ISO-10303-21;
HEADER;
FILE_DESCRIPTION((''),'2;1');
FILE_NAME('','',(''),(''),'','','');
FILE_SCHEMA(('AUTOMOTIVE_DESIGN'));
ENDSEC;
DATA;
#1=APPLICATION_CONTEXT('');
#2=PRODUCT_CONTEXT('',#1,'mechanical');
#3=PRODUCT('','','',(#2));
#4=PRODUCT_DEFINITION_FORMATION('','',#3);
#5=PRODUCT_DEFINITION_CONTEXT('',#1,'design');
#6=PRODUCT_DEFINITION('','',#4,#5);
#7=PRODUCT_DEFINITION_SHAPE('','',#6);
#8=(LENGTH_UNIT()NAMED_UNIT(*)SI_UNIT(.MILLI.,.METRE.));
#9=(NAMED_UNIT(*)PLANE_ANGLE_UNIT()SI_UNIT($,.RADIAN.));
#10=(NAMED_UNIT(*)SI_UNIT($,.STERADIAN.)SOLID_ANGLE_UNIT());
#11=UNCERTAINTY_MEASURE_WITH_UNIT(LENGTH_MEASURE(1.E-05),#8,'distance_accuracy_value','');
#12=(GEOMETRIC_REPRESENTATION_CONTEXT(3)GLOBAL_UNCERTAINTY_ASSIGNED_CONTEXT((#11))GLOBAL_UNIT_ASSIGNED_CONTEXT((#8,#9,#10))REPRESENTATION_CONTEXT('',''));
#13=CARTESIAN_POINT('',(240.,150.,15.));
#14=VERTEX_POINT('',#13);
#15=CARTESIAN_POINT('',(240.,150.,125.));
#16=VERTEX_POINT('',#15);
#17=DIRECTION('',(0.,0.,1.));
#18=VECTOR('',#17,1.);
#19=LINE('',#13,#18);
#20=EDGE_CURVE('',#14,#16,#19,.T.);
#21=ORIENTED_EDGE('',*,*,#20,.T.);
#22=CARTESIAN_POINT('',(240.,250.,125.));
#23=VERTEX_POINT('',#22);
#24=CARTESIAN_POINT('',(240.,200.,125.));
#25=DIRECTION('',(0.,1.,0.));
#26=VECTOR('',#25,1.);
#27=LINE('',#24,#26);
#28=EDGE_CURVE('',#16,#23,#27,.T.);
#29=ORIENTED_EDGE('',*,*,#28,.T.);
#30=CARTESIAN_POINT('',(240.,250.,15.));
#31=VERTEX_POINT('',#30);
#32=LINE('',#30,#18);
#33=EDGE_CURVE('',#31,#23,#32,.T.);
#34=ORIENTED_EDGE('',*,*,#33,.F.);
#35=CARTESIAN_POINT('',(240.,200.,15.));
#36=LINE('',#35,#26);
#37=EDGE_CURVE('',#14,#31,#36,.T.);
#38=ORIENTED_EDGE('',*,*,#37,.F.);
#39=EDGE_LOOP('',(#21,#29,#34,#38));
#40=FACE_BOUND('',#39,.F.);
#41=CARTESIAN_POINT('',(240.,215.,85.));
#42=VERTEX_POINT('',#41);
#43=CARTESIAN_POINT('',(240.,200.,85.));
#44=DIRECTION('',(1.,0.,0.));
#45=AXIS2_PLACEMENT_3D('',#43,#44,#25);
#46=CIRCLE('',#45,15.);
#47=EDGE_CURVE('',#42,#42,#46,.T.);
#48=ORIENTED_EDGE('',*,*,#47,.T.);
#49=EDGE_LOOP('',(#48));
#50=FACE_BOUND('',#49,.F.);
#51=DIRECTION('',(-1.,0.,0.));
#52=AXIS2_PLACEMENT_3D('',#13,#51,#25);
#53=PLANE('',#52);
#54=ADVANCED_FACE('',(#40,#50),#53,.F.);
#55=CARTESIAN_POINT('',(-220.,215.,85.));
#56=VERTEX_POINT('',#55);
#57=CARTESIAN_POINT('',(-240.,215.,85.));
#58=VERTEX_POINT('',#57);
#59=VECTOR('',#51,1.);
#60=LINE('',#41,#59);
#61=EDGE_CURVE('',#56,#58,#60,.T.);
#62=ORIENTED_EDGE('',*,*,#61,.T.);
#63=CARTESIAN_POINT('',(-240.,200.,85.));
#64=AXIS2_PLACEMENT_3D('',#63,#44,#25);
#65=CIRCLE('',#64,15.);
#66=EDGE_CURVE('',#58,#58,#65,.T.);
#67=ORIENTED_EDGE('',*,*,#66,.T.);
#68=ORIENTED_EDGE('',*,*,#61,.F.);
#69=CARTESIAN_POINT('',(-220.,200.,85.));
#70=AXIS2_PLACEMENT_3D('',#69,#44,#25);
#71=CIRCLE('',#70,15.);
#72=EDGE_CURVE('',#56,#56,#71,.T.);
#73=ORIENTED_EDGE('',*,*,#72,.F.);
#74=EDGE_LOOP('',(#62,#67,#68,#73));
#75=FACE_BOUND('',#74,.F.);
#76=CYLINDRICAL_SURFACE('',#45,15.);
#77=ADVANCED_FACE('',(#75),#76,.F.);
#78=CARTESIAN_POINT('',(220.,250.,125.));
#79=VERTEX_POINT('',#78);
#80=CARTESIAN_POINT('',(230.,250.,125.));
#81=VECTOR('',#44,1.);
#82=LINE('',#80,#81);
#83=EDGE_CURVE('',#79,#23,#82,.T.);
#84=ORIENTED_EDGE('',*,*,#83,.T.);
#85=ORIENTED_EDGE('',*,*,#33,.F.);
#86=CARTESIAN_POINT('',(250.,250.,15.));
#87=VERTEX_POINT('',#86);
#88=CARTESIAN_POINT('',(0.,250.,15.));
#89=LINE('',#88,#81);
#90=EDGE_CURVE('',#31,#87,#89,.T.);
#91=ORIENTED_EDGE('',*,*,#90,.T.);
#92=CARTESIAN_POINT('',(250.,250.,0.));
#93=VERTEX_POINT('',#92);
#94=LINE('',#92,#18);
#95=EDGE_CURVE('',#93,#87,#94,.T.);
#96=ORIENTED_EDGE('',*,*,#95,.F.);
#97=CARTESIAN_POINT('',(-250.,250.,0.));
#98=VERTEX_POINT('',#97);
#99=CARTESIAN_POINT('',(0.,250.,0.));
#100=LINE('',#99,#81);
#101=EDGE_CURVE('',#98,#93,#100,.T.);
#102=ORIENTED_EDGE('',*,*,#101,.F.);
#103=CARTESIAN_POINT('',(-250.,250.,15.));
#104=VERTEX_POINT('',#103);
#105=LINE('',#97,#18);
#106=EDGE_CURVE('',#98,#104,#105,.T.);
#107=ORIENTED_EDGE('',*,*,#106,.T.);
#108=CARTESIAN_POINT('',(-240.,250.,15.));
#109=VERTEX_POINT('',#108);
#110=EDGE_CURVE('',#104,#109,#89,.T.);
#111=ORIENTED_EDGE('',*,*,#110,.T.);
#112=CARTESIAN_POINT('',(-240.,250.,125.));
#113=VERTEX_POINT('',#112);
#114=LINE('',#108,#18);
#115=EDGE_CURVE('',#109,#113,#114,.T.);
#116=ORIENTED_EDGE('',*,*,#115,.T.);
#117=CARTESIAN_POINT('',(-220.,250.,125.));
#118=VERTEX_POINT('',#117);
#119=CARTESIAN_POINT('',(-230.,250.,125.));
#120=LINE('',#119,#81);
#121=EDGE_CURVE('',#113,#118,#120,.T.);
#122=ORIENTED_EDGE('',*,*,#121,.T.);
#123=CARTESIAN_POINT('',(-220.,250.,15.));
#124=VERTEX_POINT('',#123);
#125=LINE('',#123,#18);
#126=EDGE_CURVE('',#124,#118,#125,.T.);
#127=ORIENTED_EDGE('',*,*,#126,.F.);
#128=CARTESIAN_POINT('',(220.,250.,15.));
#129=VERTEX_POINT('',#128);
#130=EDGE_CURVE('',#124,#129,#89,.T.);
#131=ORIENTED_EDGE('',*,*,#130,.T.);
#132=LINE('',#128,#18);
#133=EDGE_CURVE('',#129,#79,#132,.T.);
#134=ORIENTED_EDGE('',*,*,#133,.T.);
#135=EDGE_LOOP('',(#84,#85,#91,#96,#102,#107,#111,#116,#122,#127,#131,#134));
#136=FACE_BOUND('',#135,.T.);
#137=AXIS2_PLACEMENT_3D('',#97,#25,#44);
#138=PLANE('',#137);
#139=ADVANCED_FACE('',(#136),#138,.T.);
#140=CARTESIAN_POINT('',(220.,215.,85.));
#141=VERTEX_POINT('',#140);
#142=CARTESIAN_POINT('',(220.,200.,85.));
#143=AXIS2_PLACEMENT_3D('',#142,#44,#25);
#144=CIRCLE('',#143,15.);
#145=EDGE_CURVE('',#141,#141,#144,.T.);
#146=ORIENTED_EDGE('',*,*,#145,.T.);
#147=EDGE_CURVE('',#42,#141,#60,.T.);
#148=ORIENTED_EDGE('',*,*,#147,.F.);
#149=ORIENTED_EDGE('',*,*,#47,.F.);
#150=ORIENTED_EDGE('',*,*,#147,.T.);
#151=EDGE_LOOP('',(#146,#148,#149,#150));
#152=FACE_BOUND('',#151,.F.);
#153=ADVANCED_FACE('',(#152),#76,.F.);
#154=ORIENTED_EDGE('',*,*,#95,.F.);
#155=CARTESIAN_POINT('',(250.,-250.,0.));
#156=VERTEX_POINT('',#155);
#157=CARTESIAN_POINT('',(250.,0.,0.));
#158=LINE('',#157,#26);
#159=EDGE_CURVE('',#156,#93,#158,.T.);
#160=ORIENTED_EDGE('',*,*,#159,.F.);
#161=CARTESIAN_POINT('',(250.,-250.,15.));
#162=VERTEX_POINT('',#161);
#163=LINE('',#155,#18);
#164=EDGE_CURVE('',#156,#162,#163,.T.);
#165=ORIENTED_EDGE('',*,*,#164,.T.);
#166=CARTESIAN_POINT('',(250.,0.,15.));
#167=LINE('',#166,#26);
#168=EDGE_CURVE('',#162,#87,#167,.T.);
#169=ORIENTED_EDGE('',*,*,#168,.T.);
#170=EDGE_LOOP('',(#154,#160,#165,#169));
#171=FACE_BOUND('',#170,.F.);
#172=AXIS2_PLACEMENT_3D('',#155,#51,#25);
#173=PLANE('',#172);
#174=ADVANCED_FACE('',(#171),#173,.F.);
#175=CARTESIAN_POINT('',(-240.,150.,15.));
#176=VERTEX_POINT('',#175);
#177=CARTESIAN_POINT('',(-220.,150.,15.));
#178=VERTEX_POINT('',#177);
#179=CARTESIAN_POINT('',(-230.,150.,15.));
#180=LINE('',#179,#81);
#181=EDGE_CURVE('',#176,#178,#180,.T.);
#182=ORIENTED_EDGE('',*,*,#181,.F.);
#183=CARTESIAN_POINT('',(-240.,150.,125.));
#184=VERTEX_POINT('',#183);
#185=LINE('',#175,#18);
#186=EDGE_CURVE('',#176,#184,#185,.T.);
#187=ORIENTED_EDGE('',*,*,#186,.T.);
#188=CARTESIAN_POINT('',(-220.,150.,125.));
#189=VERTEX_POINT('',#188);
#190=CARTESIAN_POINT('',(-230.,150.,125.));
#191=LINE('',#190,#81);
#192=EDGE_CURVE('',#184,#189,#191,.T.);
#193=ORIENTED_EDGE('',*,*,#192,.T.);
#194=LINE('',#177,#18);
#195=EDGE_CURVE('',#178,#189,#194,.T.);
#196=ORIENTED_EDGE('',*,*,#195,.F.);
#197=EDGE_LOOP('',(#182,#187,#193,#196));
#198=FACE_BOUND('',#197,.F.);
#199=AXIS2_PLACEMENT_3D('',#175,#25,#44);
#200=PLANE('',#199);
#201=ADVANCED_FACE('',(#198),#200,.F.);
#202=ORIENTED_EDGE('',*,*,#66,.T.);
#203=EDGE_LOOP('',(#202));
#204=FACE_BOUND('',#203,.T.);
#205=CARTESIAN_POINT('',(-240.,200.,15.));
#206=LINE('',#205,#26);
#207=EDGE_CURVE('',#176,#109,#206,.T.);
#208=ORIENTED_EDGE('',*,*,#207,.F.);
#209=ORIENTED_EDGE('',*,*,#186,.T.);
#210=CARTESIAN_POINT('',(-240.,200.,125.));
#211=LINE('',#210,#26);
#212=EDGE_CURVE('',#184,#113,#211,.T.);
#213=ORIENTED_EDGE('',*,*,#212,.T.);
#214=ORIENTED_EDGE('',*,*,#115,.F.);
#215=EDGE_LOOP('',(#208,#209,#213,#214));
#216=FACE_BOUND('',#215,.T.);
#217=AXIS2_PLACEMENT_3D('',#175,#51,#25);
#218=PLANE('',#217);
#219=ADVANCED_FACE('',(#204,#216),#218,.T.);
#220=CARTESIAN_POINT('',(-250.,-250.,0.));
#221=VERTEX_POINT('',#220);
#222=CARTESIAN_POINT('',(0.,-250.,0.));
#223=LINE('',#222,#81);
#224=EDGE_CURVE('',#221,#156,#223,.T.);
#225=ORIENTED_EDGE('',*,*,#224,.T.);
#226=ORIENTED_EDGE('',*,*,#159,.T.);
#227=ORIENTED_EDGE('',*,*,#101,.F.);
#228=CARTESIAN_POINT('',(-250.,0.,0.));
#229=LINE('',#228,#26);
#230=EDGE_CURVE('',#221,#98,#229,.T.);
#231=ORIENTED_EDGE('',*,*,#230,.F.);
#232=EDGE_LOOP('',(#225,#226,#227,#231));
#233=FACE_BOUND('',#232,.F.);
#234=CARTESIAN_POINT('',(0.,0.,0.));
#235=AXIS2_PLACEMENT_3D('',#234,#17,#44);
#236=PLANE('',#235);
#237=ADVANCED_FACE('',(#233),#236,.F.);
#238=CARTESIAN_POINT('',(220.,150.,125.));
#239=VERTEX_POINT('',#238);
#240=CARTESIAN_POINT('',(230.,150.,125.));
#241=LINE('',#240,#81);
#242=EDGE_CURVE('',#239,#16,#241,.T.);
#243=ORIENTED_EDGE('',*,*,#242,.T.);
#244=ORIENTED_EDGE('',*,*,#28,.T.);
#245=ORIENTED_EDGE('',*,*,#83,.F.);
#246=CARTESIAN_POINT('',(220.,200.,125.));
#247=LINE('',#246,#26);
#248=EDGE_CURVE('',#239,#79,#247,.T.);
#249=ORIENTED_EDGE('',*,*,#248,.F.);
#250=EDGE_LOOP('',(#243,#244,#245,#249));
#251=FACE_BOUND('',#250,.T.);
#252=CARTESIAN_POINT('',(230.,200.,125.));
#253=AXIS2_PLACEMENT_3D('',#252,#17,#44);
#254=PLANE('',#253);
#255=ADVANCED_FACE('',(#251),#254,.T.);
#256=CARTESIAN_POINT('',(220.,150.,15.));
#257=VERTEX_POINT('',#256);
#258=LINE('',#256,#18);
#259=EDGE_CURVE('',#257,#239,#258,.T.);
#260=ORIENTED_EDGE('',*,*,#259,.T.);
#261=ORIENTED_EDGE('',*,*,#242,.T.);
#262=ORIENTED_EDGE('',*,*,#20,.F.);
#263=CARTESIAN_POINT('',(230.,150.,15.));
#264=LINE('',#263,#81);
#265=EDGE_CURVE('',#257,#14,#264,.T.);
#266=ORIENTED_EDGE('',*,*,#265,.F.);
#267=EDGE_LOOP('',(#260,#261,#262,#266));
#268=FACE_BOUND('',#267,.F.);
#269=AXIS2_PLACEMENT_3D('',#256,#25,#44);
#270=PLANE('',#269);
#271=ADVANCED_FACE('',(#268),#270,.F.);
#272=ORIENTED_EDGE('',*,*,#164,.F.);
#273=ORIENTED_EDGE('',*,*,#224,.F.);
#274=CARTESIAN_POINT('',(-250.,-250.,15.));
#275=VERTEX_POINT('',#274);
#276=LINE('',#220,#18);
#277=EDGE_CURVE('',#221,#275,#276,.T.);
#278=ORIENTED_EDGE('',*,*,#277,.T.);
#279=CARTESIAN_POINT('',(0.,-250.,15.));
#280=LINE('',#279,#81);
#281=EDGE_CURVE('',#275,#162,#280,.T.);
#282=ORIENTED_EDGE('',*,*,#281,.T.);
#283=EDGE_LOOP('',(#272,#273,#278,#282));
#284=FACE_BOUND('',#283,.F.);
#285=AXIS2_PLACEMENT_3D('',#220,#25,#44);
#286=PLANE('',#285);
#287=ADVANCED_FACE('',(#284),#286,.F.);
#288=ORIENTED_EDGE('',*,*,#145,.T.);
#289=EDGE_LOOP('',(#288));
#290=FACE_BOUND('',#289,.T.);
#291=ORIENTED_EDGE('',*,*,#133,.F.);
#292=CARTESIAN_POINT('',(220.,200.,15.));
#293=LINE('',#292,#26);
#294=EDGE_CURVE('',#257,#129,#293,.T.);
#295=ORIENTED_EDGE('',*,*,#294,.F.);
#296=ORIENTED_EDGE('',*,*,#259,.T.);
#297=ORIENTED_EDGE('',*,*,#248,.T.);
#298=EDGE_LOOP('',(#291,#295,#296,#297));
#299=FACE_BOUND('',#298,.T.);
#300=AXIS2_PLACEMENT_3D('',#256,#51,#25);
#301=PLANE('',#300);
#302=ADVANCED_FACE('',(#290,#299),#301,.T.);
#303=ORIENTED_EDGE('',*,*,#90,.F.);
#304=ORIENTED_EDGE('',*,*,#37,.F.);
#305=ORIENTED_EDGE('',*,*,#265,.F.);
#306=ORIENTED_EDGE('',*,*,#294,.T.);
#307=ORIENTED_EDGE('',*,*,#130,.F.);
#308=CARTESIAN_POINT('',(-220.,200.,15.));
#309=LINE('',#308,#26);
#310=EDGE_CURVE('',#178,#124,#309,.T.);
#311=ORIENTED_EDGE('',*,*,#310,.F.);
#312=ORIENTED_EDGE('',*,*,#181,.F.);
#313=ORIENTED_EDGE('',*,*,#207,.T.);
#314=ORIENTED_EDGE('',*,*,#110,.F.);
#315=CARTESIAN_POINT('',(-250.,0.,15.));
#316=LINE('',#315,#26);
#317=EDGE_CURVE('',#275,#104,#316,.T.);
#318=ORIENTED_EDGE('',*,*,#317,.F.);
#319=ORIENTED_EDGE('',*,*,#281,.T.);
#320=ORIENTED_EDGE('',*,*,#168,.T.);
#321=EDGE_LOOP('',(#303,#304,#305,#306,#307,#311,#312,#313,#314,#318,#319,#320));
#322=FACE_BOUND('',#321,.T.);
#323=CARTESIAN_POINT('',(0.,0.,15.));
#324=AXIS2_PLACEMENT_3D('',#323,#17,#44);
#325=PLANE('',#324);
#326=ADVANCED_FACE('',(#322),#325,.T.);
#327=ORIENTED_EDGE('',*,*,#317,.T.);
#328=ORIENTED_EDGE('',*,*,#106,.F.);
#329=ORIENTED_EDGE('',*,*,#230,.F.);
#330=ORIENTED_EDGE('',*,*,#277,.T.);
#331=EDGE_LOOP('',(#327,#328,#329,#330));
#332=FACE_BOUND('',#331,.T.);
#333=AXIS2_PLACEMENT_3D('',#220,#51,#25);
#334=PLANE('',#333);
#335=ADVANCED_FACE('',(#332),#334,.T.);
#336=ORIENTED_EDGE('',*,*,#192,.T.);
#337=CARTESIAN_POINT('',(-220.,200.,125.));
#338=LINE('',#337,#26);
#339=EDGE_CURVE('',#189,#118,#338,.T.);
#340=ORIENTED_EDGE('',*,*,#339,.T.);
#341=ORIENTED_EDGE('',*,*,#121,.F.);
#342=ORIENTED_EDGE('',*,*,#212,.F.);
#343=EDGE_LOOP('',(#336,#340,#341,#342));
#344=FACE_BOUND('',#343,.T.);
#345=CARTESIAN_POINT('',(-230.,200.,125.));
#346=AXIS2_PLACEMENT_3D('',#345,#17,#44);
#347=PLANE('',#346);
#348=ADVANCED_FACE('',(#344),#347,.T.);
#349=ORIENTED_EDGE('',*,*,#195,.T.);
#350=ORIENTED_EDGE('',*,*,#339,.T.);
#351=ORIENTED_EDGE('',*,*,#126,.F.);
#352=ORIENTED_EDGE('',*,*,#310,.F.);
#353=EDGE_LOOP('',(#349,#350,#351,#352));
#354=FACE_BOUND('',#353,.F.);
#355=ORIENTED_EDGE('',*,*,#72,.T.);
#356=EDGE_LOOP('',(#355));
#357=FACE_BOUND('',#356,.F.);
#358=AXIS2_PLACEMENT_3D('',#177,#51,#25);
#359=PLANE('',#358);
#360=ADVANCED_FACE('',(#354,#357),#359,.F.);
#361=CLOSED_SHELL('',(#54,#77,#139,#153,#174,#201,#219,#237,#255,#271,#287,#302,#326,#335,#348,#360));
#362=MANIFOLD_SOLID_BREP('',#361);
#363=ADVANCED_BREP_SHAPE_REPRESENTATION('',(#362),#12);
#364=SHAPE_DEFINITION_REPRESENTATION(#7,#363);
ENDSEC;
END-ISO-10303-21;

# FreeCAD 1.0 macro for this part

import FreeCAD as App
import Part
import Sketcher
Q = App.Units.Quantity

doc = App.newDocument("Part")
body = doc.addObject("PartDesign::Body", "Body")

sketch1 = body.newObject("Sketcher::SketchObject", "Sketch")
sketch1.AttachmentSupport = (doc.getObject("XY_Plane"), [""])
sketch1.MapMode = "FlatFace"
sketch1.addGeometry([
    Part.LineSegment(App.Vector(-250, 250, 0), App.Vector(-250, -250, 0)),
    Part.LineSegment(App.Vector(-250, -250, 0), App.Vector(250, -250, 0)),
    Part.LineSegment(App.Vector(250, -250, 0), App.Vector(250, 250, 0)),
    Part.LineSegment(App.Vector(250, 250, 0), App.Vector(-250, 250, 0)),
], False)
sketch1.addConstraint([
    Sketcher.Constraint("Coincident", 0, 2, 1, 1),
    Sketcher.Constraint("Coincident", 1, 2, 2, 1),
    Sketcher.Constraint("Coincident", 2, 2, 3, 1),
    Sketcher.Constraint("Coincident", 3, 2, 0, 1),
    Sketcher.Constraint("Vertical", 0),
    Sketcher.Constraint("Horizontal", 1),
    Sketcher.Constraint("Vertical", 2),
    Sketcher.Constraint("Horizontal", 3),
    Sketcher.Constraint("Symmetric", 0, 2, 2, 2, -1, 1),
    Sketcher.Constraint("Equal", 3, 0),
    Sketcher.Constraint("DistanceX", 1, 1, 1, 2, Q("500 mm")),
])
pad1 = body.newObject("PartDesign::Pad", "Pad")
pad1.Profile = sketch1
pad1.Length = 15

sketch2 = body.newObject("Sketcher::SketchObject", "Sketch001")
sketch2.AttachmentSupport = (doc.getObject("XY_Plane"), [""])
sketch2.MapMode = "FlatFace"
sketch2.AttachmentOffset = App.Placement(App.Vector(0, 0, 15), App.Rotation())
sketch2.addGeometry([
    Part.LineSegment(App.Vector(220, 250, 0), App.Vector(220, 150, 0)),
    Part.LineSegment(App.Vector(220, 150, 0), App.Vector(240, 150, 0)),
    Part.LineSegment(App.Vector(240, 150, 0), App.Vector(240, 250, 0)),
    Part.LineSegment(App.Vector(240, 250, 0), App.Vector(220, 250, 0)),
    Part.LineSegment(App.Vector(-240, 250, 0), App.Vector(-240, 150, 0)),
    Part.LineSegment(App.Vector(-240, 150, 0), App.Vector(-220, 150, 0)),
    Part.LineSegment(App.Vector(-220, 150, 0), App.Vector(-220, 250, 0)),
    Part.LineSegment(App.Vector(-220, 250, 0), App.Vector(-240, 250, 0)),
], False)
sketch2.addConstraint([
    Sketcher.Constraint("Coincident", 0, 2, 1, 1),
    Sketcher.Constraint("Coincident", 1, 2, 2, 1),
    Sketcher.Constraint("Coincident", 2, 2, 3, 1),
    Sketcher.Constraint("Coincident", 3, 2, 0, 1),
    Sketcher.Constraint("Coincident", 4, 2, 5, 1),
    Sketcher.Constraint("Coincident", 5, 2, 6, 1),
    Sketcher.Constraint("Coincident", 6, 2, 7, 1),
    Sketcher.Constraint("Coincident", 7, 2, 4, 1),
    Sketcher.Constraint("Vertical", 0),
    Sketcher.Constraint("Horizontal", 1),
    Sketcher.Constraint("Vertical", 2),
    Sketcher.Constraint("Horizontal", 3),
    Sketcher.Constraint("Vertical", 4),
    Sketcher.Constraint("Horizontal", 5),
    Sketcher.Constraint("Vertical", 6),
    Sketcher.Constraint("Horizontal", 7),
    Sketcher.Constraint("Symmetric", 1, 2, 4, 2, -2),
    Sketcher.Constraint("Symmetric", 3, 2, 6, 2, -2),
    Sketcher.Constraint("DistanceX", 1, 1, 1, 2, Q("20 mm")),
    Sketcher.Constraint("DistanceY", 0, 2, 0, 1, Q("100 mm")),
    Sketcher.Constraint("DistanceX", -1, 1, 0, 2, Q("220 mm")),
    Sketcher.Constraint("DistanceY", -1, 1, 0, 2, Q("150 mm")),
])
pad2 = body.newObject("PartDesign::Pad", "Pad001")
pad2.Profile = sketch2
pad2.Length = 110

sketch3 = body.newObject("Sketcher::SketchObject", "Sketch002")
sketch3.AttachmentSupport = (doc.getObject("YZ_Plane"), [""])
sketch3.MapMode = "FlatFace"
sketch3.AttachmentOffset = App.Placement(App.Vector(0, 0, 240), App.Rotation())
sketch3.addGeometry(Part.Circle(App.Vector(200, 85, 0), App.Vector(0, 0, 1), 15), False)
sketch3.addConstraint([
    Sketcher.Constraint("Diameter", 0, Q("30 mm")),
    Sketcher.Constraint("DistanceX", -1, 1, 0, 3, Q("200 mm")),
    Sketcher.Constraint("DistanceY", -1, 1, 0, 3, Q("85 mm")),
])
pocket1 = body.newObject("PartDesign::Pocket", "Pocket")
pocket1.Profile = sketch3
pocket1.Type = "ThroughAll"

doc.recompute()
